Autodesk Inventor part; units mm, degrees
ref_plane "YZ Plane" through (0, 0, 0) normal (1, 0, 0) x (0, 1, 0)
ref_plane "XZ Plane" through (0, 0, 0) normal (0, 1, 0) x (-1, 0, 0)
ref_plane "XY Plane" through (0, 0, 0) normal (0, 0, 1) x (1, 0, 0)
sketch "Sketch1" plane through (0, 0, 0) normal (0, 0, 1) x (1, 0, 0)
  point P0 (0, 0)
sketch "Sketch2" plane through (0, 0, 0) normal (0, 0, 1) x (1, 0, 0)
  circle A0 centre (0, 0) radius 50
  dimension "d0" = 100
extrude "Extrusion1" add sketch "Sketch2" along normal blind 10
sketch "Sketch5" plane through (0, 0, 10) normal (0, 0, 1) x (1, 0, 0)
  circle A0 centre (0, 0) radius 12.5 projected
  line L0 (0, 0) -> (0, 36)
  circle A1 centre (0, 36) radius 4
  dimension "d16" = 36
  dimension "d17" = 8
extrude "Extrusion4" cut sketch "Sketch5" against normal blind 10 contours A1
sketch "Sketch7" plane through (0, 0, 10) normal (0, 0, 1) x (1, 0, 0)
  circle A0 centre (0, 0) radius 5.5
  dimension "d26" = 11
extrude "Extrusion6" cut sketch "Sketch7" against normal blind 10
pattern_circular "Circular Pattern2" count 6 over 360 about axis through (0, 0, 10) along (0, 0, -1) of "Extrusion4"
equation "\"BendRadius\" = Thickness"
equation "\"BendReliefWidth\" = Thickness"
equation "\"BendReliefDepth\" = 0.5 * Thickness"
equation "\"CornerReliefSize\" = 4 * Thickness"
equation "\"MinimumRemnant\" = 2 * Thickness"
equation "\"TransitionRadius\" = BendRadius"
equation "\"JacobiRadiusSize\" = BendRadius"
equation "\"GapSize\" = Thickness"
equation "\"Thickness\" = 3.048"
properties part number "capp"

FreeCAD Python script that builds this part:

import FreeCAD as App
import Part
import Sketcher

V = App.Vector
Q = App.Units.Quantity

doc = App.newDocument("Part")
body = doc.addObject("PartDesign::Body", "Body")

# Sketch on XY plane
sketch1 = body.newObject("Sketcher::SketchObject", "Sketch")
sketch1.AttachmentSupport = (doc.getObject("XY_Plane"), [""])
sketch1.MapMode = "FlatFace"
sketch1.addGeometry(Part.Circle(V(0, 0, 0), V(0, 0, 1), 50), False)
sketch1.addConstraint([
    Sketcher.Constraint("Coincident", 0, 3, -1, 1),
    Sketcher.Constraint("Diameter", 0, Q("100 mm")),
])
pad1 = body.newObject("PartDesign::Pad", "Pad")
pad1.Profile = sketch1
pad1.Length = 10

# Sketch on XY plane
sketch2 = body.newObject("Sketcher::SketchObject", "Sketch001")
sketch2.AttachmentSupport = (doc.getObject("XY_Plane"), [""])
sketch2.MapMode = "FlatFace"
sketch2.AttachmentOffset = App.Placement(V(0, 0, 10), App.Rotation())
sketch2.addGeometry(Part.Circle(V(0, 36, 0), V(0, 0, 1), 4), False)
sketch2.addConstraint([
    Sketcher.Constraint("PointOnObject", 0, 3, -2),
    Sketcher.Constraint("Diameter", 0, Q("8 mm")),
    Sketcher.Constraint("DistanceY", -1, 1, 0, 3, Q("36 mm")),
])
pocket1 = body.newObject("PartDesign::Pocket", "Pocket")
pocket1.Profile = sketch2
pocket1.Length = 10

# Sketch on XY plane
sketch3 = body.newObject("Sketcher::SketchObject", "Sketch002")
sketch3.AttachmentSupport = (doc.getObject("XY_Plane"), [""])
sketch3.MapMode = "FlatFace"
sketch3.AttachmentOffset = App.Placement(V(0, 0, 10), App.Rotation())
sketch3.addGeometry(Part.Circle(V(0, 0, 0), V(0, 0, 1), 5.5), False)
sketch3.addConstraint([
    Sketcher.Constraint("Coincident", 0, 3, -1, 1),
    Sketcher.Constraint("Diameter", 0, Q("11 mm")),
])
pocket2 = body.newObject("PartDesign::Pocket", "Pocket001")
pocket2.Profile = sketch3
pocket2.Length = 10
doc.recompute()

polarpattern = body.newObject("PartDesign::PolarPattern", "PolarPattern")
polarpattern.Originals = [pocket1]
polarpattern.Axis = (doc.getObject("Z_Axis"), [""])
polarpattern.Angle = 360
polarpattern.Occurrences = 6
body.Tip = polarpattern

doc.recompute()
